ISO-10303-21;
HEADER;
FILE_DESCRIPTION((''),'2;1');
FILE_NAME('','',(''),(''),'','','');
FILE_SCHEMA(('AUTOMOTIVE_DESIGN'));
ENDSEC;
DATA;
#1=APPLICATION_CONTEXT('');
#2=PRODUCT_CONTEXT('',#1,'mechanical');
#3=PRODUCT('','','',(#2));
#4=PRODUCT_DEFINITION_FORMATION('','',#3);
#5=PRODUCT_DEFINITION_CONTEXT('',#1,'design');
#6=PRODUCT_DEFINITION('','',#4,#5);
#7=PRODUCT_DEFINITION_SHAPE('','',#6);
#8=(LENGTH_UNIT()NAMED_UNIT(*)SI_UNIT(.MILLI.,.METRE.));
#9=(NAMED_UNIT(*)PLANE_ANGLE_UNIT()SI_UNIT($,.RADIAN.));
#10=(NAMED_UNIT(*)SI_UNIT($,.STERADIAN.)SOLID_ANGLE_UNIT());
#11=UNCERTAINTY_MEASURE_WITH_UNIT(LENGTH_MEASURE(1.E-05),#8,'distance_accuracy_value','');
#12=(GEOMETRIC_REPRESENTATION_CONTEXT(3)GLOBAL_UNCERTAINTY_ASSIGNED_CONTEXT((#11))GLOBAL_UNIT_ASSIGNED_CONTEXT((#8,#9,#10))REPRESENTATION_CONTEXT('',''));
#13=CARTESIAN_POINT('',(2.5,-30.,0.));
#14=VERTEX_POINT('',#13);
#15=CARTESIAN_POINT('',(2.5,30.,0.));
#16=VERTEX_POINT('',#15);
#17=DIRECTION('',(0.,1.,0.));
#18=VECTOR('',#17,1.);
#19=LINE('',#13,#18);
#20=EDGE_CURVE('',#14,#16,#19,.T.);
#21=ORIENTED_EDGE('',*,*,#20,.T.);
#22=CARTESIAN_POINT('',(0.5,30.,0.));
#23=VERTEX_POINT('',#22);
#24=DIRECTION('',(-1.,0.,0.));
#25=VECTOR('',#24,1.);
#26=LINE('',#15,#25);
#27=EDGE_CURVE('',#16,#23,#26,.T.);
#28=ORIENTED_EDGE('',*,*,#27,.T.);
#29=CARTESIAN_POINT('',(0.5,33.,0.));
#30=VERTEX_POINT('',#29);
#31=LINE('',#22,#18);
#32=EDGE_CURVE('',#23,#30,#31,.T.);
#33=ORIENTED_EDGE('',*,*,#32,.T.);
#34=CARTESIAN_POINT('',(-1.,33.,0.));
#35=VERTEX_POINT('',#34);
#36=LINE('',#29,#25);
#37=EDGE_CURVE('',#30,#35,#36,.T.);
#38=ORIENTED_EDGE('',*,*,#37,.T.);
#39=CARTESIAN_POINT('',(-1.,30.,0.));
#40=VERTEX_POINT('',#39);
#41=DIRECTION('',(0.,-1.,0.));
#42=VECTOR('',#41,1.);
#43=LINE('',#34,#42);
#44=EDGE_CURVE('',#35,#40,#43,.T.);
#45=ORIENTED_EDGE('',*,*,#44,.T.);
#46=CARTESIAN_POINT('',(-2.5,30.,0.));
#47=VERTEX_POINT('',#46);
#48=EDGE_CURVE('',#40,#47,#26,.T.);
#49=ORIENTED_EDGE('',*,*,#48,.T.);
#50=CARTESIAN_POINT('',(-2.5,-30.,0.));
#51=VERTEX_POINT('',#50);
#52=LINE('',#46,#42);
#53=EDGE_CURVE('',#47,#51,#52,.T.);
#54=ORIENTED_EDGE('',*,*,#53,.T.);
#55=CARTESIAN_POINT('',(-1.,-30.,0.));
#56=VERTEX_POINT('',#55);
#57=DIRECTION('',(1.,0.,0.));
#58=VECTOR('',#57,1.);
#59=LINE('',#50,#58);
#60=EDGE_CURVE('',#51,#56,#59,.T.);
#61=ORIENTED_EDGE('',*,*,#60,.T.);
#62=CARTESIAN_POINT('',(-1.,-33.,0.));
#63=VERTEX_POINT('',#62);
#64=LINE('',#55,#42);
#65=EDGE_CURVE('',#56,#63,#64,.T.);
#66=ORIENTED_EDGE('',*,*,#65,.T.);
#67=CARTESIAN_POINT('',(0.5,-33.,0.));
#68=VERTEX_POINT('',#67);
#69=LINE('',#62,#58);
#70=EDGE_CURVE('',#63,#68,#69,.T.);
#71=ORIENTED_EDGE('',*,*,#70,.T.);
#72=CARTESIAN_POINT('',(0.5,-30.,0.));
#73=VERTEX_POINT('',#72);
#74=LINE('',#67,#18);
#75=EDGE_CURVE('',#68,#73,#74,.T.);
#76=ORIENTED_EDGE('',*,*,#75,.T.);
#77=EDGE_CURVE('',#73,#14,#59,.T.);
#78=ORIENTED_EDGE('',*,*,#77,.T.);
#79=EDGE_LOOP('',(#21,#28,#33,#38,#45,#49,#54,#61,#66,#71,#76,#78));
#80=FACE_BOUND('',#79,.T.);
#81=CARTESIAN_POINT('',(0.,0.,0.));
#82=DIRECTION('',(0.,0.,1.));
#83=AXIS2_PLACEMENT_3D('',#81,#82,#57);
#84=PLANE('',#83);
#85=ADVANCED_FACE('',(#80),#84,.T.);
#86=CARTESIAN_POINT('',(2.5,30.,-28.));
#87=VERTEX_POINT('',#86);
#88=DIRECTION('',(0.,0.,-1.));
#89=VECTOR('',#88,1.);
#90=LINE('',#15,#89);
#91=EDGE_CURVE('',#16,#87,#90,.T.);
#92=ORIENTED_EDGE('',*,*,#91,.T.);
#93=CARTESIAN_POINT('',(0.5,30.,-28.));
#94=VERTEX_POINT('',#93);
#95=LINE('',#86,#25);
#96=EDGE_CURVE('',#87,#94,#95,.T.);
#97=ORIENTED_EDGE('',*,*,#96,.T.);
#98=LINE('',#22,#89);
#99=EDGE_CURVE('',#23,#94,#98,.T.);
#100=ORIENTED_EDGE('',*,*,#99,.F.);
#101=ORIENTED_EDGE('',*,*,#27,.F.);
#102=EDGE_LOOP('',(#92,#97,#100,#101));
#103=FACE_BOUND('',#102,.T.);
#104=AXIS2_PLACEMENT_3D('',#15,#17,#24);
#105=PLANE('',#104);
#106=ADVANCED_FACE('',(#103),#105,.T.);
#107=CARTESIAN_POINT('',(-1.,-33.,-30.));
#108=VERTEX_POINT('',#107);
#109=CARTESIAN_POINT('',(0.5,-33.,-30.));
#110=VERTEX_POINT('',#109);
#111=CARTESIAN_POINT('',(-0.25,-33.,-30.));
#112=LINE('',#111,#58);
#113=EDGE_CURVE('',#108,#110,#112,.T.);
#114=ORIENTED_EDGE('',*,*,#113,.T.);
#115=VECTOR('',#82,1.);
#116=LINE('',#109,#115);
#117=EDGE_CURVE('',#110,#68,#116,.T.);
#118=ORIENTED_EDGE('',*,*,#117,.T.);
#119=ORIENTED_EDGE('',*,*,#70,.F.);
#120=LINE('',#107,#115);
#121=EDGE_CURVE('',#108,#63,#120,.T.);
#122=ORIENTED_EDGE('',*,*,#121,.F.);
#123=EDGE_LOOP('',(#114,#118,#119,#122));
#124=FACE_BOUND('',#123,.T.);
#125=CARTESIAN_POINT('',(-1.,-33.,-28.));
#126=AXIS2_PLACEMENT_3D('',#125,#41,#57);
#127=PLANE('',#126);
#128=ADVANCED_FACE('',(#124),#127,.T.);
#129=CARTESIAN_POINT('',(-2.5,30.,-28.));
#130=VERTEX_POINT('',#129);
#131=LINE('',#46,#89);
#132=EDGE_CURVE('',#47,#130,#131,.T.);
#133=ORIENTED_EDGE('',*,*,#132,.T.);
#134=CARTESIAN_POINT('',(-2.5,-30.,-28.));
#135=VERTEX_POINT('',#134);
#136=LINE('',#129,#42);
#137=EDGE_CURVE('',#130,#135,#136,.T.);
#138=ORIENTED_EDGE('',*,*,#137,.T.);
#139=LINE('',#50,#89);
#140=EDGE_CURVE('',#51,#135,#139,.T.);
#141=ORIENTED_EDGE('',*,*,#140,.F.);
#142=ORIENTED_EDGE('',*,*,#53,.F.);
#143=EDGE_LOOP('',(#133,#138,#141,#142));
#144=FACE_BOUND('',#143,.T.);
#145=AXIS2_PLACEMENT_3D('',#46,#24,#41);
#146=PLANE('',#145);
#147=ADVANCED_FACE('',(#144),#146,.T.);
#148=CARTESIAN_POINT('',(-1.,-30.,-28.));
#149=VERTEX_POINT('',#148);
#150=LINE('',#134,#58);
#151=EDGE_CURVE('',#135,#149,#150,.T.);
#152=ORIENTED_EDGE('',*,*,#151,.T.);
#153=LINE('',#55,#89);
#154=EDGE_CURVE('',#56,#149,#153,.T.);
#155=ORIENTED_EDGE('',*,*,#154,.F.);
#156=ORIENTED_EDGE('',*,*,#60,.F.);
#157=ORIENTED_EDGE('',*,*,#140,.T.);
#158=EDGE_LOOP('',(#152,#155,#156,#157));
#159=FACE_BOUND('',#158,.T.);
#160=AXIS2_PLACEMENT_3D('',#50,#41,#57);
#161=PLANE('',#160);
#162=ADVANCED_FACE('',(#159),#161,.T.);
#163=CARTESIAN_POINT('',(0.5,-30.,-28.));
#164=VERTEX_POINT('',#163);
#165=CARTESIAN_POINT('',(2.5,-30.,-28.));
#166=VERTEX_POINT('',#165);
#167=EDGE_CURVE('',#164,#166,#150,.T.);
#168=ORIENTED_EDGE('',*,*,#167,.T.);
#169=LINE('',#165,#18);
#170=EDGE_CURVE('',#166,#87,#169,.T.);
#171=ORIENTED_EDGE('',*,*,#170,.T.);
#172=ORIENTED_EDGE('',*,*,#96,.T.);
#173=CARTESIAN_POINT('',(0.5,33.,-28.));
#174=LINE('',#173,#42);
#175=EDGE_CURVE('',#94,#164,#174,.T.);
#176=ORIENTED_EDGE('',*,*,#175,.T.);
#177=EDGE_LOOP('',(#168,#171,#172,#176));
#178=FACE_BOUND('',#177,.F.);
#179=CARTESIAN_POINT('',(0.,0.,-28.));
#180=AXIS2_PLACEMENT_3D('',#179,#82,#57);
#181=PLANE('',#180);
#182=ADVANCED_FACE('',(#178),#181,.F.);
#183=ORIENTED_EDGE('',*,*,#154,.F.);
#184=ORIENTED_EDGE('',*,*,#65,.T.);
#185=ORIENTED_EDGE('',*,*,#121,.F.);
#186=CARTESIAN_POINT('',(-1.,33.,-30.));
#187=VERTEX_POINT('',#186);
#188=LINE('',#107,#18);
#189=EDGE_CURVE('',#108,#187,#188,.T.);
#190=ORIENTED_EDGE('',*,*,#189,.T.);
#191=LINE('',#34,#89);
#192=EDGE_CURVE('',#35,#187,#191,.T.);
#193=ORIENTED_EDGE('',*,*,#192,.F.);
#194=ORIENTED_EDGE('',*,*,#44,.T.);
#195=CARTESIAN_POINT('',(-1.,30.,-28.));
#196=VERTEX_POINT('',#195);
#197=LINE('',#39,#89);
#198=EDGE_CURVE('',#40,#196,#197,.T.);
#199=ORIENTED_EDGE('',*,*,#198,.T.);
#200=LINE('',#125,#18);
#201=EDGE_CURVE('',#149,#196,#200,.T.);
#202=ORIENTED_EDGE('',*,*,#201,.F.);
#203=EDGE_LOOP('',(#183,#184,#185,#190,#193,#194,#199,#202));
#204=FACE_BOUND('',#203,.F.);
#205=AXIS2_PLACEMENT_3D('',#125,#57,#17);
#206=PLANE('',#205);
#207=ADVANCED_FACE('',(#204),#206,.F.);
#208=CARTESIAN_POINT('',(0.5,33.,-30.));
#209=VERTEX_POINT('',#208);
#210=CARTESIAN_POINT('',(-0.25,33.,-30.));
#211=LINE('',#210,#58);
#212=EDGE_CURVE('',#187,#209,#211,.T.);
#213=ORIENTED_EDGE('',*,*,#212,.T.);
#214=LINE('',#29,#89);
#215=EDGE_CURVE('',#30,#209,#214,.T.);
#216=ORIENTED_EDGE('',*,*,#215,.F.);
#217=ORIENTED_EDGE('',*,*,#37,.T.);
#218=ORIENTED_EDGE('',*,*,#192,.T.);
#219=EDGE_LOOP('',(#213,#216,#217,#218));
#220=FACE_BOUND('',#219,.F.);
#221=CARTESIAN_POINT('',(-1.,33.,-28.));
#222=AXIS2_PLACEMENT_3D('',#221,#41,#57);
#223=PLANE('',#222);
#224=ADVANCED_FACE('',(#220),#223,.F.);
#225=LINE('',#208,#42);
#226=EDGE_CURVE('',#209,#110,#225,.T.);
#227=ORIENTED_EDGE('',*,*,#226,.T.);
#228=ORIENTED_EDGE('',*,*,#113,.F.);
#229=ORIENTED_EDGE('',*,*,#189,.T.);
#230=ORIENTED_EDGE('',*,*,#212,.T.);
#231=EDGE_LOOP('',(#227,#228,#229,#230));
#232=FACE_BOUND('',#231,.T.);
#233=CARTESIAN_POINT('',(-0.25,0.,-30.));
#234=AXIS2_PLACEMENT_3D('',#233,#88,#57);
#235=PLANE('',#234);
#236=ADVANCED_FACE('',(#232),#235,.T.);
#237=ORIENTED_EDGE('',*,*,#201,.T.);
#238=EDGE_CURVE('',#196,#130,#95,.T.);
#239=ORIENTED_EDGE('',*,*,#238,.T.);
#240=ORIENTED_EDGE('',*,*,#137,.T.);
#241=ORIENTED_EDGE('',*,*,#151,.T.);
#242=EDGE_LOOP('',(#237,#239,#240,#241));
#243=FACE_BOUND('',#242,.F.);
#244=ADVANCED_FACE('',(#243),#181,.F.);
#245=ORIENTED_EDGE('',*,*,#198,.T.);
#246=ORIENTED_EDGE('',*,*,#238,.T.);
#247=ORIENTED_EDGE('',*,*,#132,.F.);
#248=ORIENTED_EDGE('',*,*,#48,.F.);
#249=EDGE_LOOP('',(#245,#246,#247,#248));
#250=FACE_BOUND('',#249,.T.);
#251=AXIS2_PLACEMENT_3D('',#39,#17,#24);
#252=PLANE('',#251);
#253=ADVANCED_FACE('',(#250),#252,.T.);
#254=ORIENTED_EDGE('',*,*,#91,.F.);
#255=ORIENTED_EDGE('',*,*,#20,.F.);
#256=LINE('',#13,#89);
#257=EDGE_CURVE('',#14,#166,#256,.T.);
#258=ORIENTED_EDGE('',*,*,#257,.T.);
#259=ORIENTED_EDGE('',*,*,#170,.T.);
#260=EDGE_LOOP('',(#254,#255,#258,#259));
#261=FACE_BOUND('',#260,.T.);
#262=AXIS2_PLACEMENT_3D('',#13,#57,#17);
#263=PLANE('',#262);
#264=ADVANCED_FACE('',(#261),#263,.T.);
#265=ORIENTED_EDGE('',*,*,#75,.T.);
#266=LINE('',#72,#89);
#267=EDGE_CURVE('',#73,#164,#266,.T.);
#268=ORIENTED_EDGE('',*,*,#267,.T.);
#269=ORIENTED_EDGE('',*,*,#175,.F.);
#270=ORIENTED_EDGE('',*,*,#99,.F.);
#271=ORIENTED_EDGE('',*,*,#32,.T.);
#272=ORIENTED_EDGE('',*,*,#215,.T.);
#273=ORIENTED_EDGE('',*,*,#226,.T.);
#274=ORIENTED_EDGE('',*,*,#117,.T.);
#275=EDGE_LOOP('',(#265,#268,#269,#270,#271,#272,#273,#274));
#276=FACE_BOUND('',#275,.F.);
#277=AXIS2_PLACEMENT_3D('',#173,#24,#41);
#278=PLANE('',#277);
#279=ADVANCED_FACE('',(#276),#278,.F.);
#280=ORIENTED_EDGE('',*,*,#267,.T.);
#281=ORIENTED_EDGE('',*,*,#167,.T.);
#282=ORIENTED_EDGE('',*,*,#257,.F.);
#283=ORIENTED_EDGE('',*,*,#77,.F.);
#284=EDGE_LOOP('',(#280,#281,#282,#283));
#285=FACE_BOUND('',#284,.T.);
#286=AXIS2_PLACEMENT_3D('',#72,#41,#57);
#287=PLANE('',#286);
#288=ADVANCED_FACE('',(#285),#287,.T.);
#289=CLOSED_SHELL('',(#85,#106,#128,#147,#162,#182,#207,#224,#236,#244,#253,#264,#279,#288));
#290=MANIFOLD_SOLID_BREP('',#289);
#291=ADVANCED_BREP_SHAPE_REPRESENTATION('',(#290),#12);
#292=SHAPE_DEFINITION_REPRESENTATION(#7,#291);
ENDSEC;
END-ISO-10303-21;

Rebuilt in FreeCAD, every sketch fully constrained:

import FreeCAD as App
import Part
import Sketcher
Q = App.Units.Quantity


def add_polygon(sketch, points):
    """Adds a closed chain of lines whose ends are joined by coincident constraints."""
    first, n = sketch.GeometryCount, len(points)
    for a, b in zip(points, points[1:] + points[:1]):
        sketch.addGeometry(Part.LineSegment(App.Vector(*a, 0), App.Vector(*b, 0)), False)
    for i in range(n):
        sketch.addConstraint(Sketcher.Constraint("Coincident", first + i, 2, first + (i + 1) % n, 1))

doc = App.newDocument("Part")
params = doc.addObject("Spreadsheet::Sheet", "Params")
for row, (alias, value) in enumerate([
    ("sketch1_width", "2 mm"),
    ("sketch1_height", "60 mm"),
    ("sketch1_height2", "3 mm"),
    ("sketch1_width2", "1.5 mm"),
    ("pad1_length", "28 mm"),
    ("sketch2_height", "66 mm"),
    ("sketch2_width", "1.5 mm"),
    ("pad2_length", "2 mm"),
], start=1):
    params.set(f"A{row}", alias)
    params.set(f"B{row}", "=" + value)
    params.setAlias(f"B{row}", alias)

body = doc.addObject("PartDesign::Body", "Body")

# Sketch on XY plane
sketch1 = doc.addObject("Sketcher::SketchObject", "Sketch")
body.addObject(sketch1)
sketch1.AttachmentSupport = (doc.XY_Plane, [""])
sketch1.MapMode = "FlatFace"
add_polygon(sketch1, [(2.5, -30), (2.5, 30), (0.5, 30), (0.5, 33), (-1, 33), (-1, 30), (-2.5, 30), (-2.5, -30), (-1, -30), (-1, -33), (0.5, -33), (0.5, -30)])  # lines 0-11
sketch1.addConstraint([
    Sketcher.Constraint("Vertical", 0),
    Sketcher.Constraint("Horizontal", 1),
    Sketcher.Constraint("Vertical", 2),
    Sketcher.Constraint("Horizontal", 3),
    Sketcher.Constraint("Vertical", 4),
    Sketcher.Constraint("Horizontal", 5),
    Sketcher.Constraint("Vertical", 6),
    Sketcher.Constraint("Horizontal", 7),
    Sketcher.Constraint("Vertical", 8),
    Sketcher.Constraint("Horizontal", 9),
    Sketcher.Constraint("Vertical", 10),
    Sketcher.Constraint("Horizontal", 11),
    Sketcher.Constraint("Symmetric", 0, 2, 6, 2, -1, 1),
    Sketcher.Constraint("Symmetric", 4, 2, 7, 2, -1),
    Sketcher.Constraint("Symmetric", 2, 2, 9, 2, -1),
    Sketcher.Constraint("Horizontal", 7, 2, 10, 2),
    Sketcher.Constraint("Equal", 3, 5),
    Sketcher.Constraint("DistanceX", 1, 2, 1, 1, Q("2 mm")),
    Sketcher.Constraint("DistanceY", 0, 1, 0, 2, Q("60 mm")),
    Sketcher.Constraint("DistanceY", 2, 1, 2, 2, Q("3 mm")),
    Sketcher.Constraint("DistanceX", 3, 2, 3, 1, Q("1.5 mm")),
])
sketch1.setExpression("Constraints[29]", "Params.sketch1_width")
sketch1.setExpression("Constraints[30]", "Params.sketch1_height")
sketch1.setExpression("Constraints[31]", "Params.sketch1_height2")
sketch1.setExpression("Constraints[32]", "Params.sketch1_width2")
pad1 = doc.addObject("PartDesign::Pad", "Pad")
body.addObject(pad1)
pad1.Profile = sketch1
pad1.setExpression("Length", "Params.pad1_length")
pad1.Reversed = True

# Sketch on XY plane
sketch2 = doc.addObject("Sketcher::SketchObject", "Sketch001")
body.addObject(sketch2)
sketch2.AttachmentSupport = (doc.XY_Plane, [""])
sketch2.MapMode = "FlatFace"
sketch2.AttachmentOffset = App.Placement(App.Vector(0, 0, -28), App.Rotation())
add_polygon(sketch2, [(-1, -33), (-1, 33), (0.5, 33), (0.5, -33)])  # lines 0-3
sketch2.addConstraint([
    Sketcher.Constraint("Vertical", 0),
    Sketcher.Constraint("Horizontal", 1),
    Sketcher.Constraint("Vertical", 2),
    Sketcher.Constraint("Horizontal", 3),
    Sketcher.Constraint("DistanceY", 0, 1, 0, 2, Q("66 mm")),
    Sketcher.Constraint("DistanceX", 1, 1, 1, 2, Q("1.5 mm")),
    Sketcher.Constraint("DistanceX", 0, 2, -1, 1, Q("1 mm")),
    Sketcher.Constraint("DistanceY", -1, 1, 0, 2, Q("33 mm")),
])
sketch2.setExpression("Constraints[8]", "Params.sketch2_height")
sketch2.setExpression("Constraints[9]", "Params.sketch2_width")
pad2 = doc.addObject("PartDesign::Pad", "Pad001")
body.addObject(pad2)
pad2.Profile = sketch2
pad2.setExpression("Length", "Params.pad2_length")
pad2.Reversed = True

doc.recompute()
